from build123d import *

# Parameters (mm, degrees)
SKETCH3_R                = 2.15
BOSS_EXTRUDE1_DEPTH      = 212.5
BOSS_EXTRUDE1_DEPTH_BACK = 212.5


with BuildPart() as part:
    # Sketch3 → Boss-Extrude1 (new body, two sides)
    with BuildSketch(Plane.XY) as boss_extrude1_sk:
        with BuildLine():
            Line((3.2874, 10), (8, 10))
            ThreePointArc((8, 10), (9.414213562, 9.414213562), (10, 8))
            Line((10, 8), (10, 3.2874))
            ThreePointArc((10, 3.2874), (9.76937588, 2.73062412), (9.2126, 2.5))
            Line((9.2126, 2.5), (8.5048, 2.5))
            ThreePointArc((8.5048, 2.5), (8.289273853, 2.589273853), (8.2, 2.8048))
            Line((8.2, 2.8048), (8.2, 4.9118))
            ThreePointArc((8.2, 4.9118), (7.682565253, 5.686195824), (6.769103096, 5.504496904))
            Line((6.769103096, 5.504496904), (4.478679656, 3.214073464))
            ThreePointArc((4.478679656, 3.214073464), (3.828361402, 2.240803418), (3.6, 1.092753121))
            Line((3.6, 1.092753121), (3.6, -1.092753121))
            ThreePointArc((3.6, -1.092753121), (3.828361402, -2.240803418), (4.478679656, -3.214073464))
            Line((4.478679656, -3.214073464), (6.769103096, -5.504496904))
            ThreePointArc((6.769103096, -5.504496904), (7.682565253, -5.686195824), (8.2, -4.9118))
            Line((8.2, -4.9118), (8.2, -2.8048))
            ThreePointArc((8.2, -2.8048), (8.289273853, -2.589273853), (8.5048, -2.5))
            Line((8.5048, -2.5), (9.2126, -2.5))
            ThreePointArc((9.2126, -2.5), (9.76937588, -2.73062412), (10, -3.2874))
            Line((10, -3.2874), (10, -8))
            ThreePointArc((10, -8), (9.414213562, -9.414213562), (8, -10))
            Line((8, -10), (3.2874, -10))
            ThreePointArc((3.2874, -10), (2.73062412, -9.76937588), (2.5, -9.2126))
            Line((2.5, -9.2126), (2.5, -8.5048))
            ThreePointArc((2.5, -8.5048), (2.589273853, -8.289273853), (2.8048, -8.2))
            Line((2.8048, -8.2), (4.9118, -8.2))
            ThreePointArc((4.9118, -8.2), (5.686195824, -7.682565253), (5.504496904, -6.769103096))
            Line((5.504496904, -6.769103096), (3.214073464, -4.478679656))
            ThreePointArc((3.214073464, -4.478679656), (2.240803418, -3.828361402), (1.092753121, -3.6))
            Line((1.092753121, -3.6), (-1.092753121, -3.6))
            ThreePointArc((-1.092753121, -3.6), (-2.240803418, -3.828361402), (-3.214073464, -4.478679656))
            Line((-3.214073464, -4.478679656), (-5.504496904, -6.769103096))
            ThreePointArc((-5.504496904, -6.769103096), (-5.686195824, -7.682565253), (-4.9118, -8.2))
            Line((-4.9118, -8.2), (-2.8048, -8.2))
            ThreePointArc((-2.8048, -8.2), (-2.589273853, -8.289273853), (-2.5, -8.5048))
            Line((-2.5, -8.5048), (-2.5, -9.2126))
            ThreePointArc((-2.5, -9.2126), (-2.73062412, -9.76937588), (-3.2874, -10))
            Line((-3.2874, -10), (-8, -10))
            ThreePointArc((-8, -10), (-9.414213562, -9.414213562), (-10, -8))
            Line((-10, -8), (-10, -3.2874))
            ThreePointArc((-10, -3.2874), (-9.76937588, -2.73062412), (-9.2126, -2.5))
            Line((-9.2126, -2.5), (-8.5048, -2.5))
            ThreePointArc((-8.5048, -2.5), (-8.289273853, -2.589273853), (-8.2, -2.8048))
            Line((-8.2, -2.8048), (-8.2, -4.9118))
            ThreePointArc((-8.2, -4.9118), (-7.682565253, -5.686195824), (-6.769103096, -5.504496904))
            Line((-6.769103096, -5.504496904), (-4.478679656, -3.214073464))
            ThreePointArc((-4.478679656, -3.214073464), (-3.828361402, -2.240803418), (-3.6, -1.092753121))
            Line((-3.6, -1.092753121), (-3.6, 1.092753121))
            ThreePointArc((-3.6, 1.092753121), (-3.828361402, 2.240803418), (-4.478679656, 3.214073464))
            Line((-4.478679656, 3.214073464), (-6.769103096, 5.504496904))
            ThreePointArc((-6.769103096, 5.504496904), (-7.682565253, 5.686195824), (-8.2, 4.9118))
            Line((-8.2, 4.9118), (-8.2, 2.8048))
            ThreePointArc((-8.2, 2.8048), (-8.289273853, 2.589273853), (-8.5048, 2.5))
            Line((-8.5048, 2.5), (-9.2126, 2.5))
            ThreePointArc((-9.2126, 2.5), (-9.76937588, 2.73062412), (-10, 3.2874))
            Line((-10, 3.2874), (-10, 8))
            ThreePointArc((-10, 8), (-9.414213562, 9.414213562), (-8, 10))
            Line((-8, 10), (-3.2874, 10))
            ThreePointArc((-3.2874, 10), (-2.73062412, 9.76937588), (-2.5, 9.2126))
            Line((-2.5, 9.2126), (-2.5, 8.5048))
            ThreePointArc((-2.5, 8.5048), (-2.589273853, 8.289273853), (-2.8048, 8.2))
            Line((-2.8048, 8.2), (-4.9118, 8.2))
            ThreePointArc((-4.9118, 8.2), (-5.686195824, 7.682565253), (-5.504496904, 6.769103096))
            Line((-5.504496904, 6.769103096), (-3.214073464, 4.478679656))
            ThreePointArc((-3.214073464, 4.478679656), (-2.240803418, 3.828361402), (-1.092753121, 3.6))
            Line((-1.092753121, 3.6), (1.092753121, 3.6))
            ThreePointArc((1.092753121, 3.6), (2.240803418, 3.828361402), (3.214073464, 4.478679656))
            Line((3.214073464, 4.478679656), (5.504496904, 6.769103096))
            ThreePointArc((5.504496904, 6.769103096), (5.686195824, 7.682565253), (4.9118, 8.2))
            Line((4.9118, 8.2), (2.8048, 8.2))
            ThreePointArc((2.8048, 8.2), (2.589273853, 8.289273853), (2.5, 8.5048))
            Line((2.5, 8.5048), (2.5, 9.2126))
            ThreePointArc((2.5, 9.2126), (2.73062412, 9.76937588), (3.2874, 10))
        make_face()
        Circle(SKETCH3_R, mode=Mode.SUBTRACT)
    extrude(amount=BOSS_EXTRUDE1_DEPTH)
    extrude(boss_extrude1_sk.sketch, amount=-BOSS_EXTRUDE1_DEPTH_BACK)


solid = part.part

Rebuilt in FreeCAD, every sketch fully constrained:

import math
import FreeCAD as App
import Part
import Sketcher
from FreeCAD import Vector

doc = App.newDocument("Part")
body = doc.addObject("PartDesign::Body", "Body")

# Sketch on XY plane
sketch1 = body.newObject("Sketcher::SketchObject", "Sketch")
sketch1.AttachmentSupport = (doc.getObject("XY_Plane"), [""])
sketch1.MapMode = "FlatFace"
sketch1.addGeometry([
    Part.LineSegment(Vector(8, 10, 0), Vector(3.29, 10, 0)),  # 0
    Part.ArcOfCircle(Part.Circle(Vector(3.29, 9.21, 0), Vector(0, 0, 1), 0.79), math.radians(90), math.radians(180)),  # 1
    Part.LineSegment(Vector(2.5, 9.21, 0), Vector(2.5, 8.5, 0)),  # 2
    Part.ArcOfCircle(Part.Circle(Vector(2.8, 8.5, 0), Vector(0, 0, 1), 0.3), math.radians(180), math.radians(270)),  # 3
    Part.LineSegment(Vector(2.8, 8.2, 0), Vector(4.91, 8.2, 0)),  # 4
    Part.ArcOfCircle(Part.Circle(Vector(4.91, 7.36, 0), Vector(0, 0, 1), 0.84), math.radians(-45), math.radians(90)),  # 5
    Part.LineSegment(Vector(5.5, 6.77, 0), Vector(3.21, 4.48, 0)),  # 6
    Part.ArcOfCircle(Part.Circle(Vector(1.09, 6.6, 0), Vector(0, 0, 1), 3), math.radians(-90), math.radians(-45)),  # 7
    Part.LineSegment(Vector(1.09, 3.6, 0), Vector(-1.09, 3.6, 0)),  # 8
    Part.ArcOfCircle(Part.Circle(Vector(-1.09, 6.6, 0), Vector(0, 0, 1), 3), math.radians(-135), math.radians(-90)),  # 9
    Part.LineSegment(Vector(-3.21, 4.48, 0), Vector(-5.5, 6.77, 0)),  # 10
    Part.ArcOfCircle(Part.Circle(Vector(-4.91, 7.36, 0), Vector(0, 0, 1), 0.84), math.radians(90), math.radians(225)),  # 11
    Part.LineSegment(Vector(-4.91, 8.2, 0), Vector(-2.8, 8.2, 0)),  # 12
    Part.ArcOfCircle(Part.Circle(Vector(-2.8, 8.5, 0), Vector(0, 0, 1), 0.3), math.radians(-90), math.radians(0)),  # 13
    Part.LineSegment(Vector(-2.5, 8.5, 0), Vector(-2.5, 9.21, 0)),  # 14
    Part.ArcOfCircle(Part.Circle(Vector(-3.29, 9.21, 0), Vector(0, 0, 1), 0.79), math.radians(0), math.radians(90)),  # 15
    Part.LineSegment(Vector(-3.29, 10, 0), Vector(-8, 10, 0)),  # 16
    Part.ArcOfCircle(Part.Circle(Vector(-8, 8, 0), Vector(0, 0, 1), 2), math.radians(90), math.radians(180)),  # 17
    Part.LineSegment(Vector(-10, 8, 0), Vector(-10, 3.29, 0)),  # 18
    Part.ArcOfCircle(Part.Circle(Vector(-9.21, 3.29, 0), Vector(0, 0, 1), 0.79), math.radians(180), math.radians(270)),  # 19
    Part.LineSegment(Vector(-9.21, 2.5, 0), Vector(-8.5, 2.5, 0)),  # 20
    Part.ArcOfCircle(Part.Circle(Vector(-8.5, 2.8, 0), Vector(0, 0, 1), 0.3), math.radians(-90), math.radians(0)),  # 21
    Part.LineSegment(Vector(-8.2, 2.8, 0), Vector(-8.2, 4.91, 0)),  # 22
    Part.ArcOfCircle(Part.Circle(Vector(-7.36, 4.91, 0), Vector(0, 0, 1), 0.84), math.radians(45), math.radians(180)),  # 23
    Part.LineSegment(Vector(-6.77, 5.5, 0), Vector(-4.48, 3.21, 0)),  # 24
    Part.ArcOfCircle(Part.Circle(Vector(-6.6, 1.09, 0), Vector(0, 0, 1), 3), math.radians(0), math.radians(45)),  # 25
    Part.LineSegment(Vector(-3.6, 1.09, 0), Vector(-3.6, -1.09, 0)),  # 26
    Part.ArcOfCircle(Part.Circle(Vector(-6.6, -1.09, 0), Vector(0, 0, 1), 3), math.radians(-45), math.radians(0)),  # 27
    Part.LineSegment(Vector(-4.48, -3.21, 0), Vector(-6.77, -5.5, 0)),  # 28
    Part.ArcOfCircle(Part.Circle(Vector(-7.36, -4.91, 0), Vector(0, 0, 1), 0.84), math.radians(180), math.radians(315)),  # 29
    Part.LineSegment(Vector(-8.2, -4.91, 0), Vector(-8.2, -2.8, 0)),  # 30
    Part.ArcOfCircle(Part.Circle(Vector(-8.5, -2.8, 0), Vector(0, 0, 1), 0.3), math.radians(0), math.radians(90)),  # 31
    Part.LineSegment(Vector(-8.5, -2.5, 0), Vector(-9.21, -2.5, 0)),  # 32
    Part.ArcOfCircle(Part.Circle(Vector(-9.21, -3.29, 0), Vector(0, 0, 1), 0.79), math.radians(90), math.radians(180)),  # 33
    Part.LineSegment(Vector(-10, -3.29, 0), Vector(-10, -8, 0)),  # 34
    Part.ArcOfCircle(Part.Circle(Vector(-8, -8, 0), Vector(0, 0, 1), 2), math.radians(-180), math.radians(-90)),  # 35
    Part.LineSegment(Vector(-8, -10, 0), Vector(-3.29, -10, 0)),  # 36
    Part.ArcOfCircle(Part.Circle(Vector(-3.29, -9.21, 0), Vector(0, 0, 1), 0.79), math.radians(-90), math.radians(0)),  # 37
    Part.LineSegment(Vector(-2.5, -9.21, 0), Vector(-2.5, -8.5, 0)),  # 38
    Part.ArcOfCircle(Part.Circle(Vector(-2.8, -8.5, 0), Vector(0, 0, 1), 0.3), math.radians(0), math.radians(90)),  # 39
    Part.LineSegment(Vector(-2.8, -8.2, 0), Vector(-4.91, -8.2, 0)),  # 40
    Part.ArcOfCircle(Part.Circle(Vector(-4.91, -7.36, 0), Vector(0, 0, 1), 0.84), math.radians(135), math.radians(270)),  # 41
    Part.LineSegment(Vector(-5.5, -6.77, 0), Vector(-3.21, -4.48, 0)),  # 42
    Part.ArcOfCircle(Part.Circle(Vector(-1.09, -6.6, 0), Vector(0, 0, 1), 3), math.radians(90), math.radians(135)),  # 43
    Part.LineSegment(Vector(-1.09, -3.6, 0), Vector(1.09, -3.6, 0)),  # 44
    Part.ArcOfCircle(Part.Circle(Vector(1.09, -6.6, 0), Vector(0, 0, 1), 3), math.radians(45), math.radians(90)),  # 45
    Part.LineSegment(Vector(3.21, -4.48, 0), Vector(5.5, -6.77, 0)),  # 46
    Part.ArcOfCircle(Part.Circle(Vector(4.91, -7.36, 0), Vector(0, 0, 1), 0.84), math.radians(-90), math.radians(45)),  # 47
    Part.LineSegment(Vector(4.91, -8.2, 0), Vector(2.8, -8.2, 0)),  # 48
    Part.ArcOfCircle(Part.Circle(Vector(2.8, -8.5, 0), Vector(0, 0, 1), 0.3), math.radians(90), math.radians(180)),  # 49
    Part.LineSegment(Vector(2.5, -8.5, 0), Vector(2.5, -9.21, 0)),  # 50
    Part.ArcOfCircle(Part.Circle(Vector(3.29, -9.21, 0), Vector(0, 0, 1), 0.79), math.radians(180), math.radians(270)),  # 51
    Part.LineSegment(Vector(3.29, -10, 0), Vector(8, -10, 0)),  # 52
    Part.ArcOfCircle(Part.Circle(Vector(8, -8, 0), Vector(0, 0, 1), 2), math.radians(-90), math.radians(0)),  # 53
    Part.LineSegment(Vector(10, -8, 0), Vector(10, -3.29, 0)),  # 54
    Part.ArcOfCircle(Part.Circle(Vector(9.21, -3.29, 0), Vector(0, 0, 1), 0.79), math.radians(0), math.radians(90)),  # 55
    Part.LineSegment(Vector(9.21, -2.5, 0), Vector(8.5, -2.5, 0)),  # 56
    Part.ArcOfCircle(Part.Circle(Vector(8.5, -2.8, 0), Vector(0, 0, 1), 0.3), math.radians(90), math.radians(180)),  # 57
    Part.LineSegment(Vector(8.2, -2.8, 0), Vector(8.2, -4.91, 0)),  # 58
    Part.ArcOfCircle(Part.Circle(Vector(7.36, -4.91, 0), Vector(0, 0, 1), 0.84), math.radians(-135), math.radians(0)),  # 59
    Part.LineSegment(Vector(6.77, -5.5, 0), Vector(4.48, -3.21, 0)),  # 60
    Part.ArcOfCircle(Part.Circle(Vector(6.6, -1.09, 0), Vector(0, 0, 1), 3), math.radians(180), math.radians(225)),  # 61
    Part.LineSegment(Vector(3.6, -1.09, 0), Vector(3.6, 1.09, 0)),  # 62
    Part.ArcOfCircle(Part.Circle(Vector(6.6, 1.09, 0), Vector(0, 0, 1), 3), math.radians(135), math.radians(180)),  # 63
    Part.LineSegment(Vector(4.48, 3.21, 0), Vector(6.77, 5.5, 0)),  # 64
    Part.ArcOfCircle(Part.Circle(Vector(7.36, 4.91, 0), Vector(0, 0, 1), 0.84), math.radians(0), math.radians(135)),  # 65
    Part.LineSegment(Vector(8.2, 4.91, 0), Vector(8.2, 2.8, 0)),  # 66
    Part.ArcOfCircle(Part.Circle(Vector(8.5, 2.8, 0), Vector(0, 0, 1), 0.3), math.radians(180), math.radians(270)),  # 67
    Part.LineSegment(Vector(8.5, 2.5, 0), Vector(9.21, 2.5, 0)),  # 68
    Part.ArcOfCircle(Part.Circle(Vector(9.21, 3.29, 0), Vector(0, 0, 1), 0.79), math.radians(-90), math.radians(0)),  # 69
    Part.LineSegment(Vector(10, 3.29, 0), Vector(10, 8, 0)),  # 70
    Part.ArcOfCircle(Part.Circle(Vector(8, 8, 0), Vector(0, 0, 1), 2), math.radians(0), math.radians(90)),  # 71
    Part.Circle(Vector(0, 0, 0), Vector(0, 0, 1), 2.15),  # 72
], False)
sketch1.addConstraint([
    Sketcher.Constraint("Tangent", 0, 2, 1, 1),
    Sketcher.Constraint("Tangent", 1, 2, 2, 1),
    Sketcher.Constraint("Tangent", 2, 2, 3, 1),
    Sketcher.Constraint("Tangent", 3, 2, 4, 1),
    Sketcher.Constraint("Tangent", 4, 2, 5, 2),
    Sketcher.Constraint("Tangent", 5, 1, 6, 1),
    Sketcher.Constraint("Tangent", 6, 2, 7, 2),
    Sketcher.Constraint("Tangent", 7, 1, 8, 1),
    Sketcher.Constraint("Tangent", 8, 2, 9, 2),
    Sketcher.Constraint("Tangent", 9, 1, 10, 1),
    Sketcher.Constraint("Tangent", 10, 2, 11, 2),
    Sketcher.Constraint("Tangent", 11, 1, 12, 1),
    Sketcher.Constraint("Tangent", 12, 2, 13, 1),
    Sketcher.Constraint("Tangent", 13, 2, 14, 1),
    Sketcher.Constraint("Tangent", 14, 2, 15, 1),
    Sketcher.Constraint("Tangent", 15, 2, 16, 1),
    Sketcher.Constraint("Tangent", 16, 2, 17, 1),
    Sketcher.Constraint("Tangent", 17, 2, 18, 1),
    Sketcher.Constraint("Tangent", 18, 2, 19, 1),
    Sketcher.Constraint("Tangent", 19, 2, 20, 1),
    Sketcher.Constraint("Tangent", 20, 2, 21, 1),
    Sketcher.Constraint("Tangent", 21, 2, 22, 1),
    Sketcher.Constraint("Tangent", 22, 2, 23, 2),
    Sketcher.Constraint("Tangent", 23, 1, 24, 1),
    Sketcher.Constraint("Tangent", 24, 2, 25, 2),
    Sketcher.Constraint("Tangent", 25, 1, 26, 1),
    Sketcher.Constraint("Tangent", 26, 2, 27, 2),
    Sketcher.Constraint("Tangent", 27, 1, 28, 1),
    Sketcher.Constraint("Tangent", 28, 2, 29, 2),
    Sketcher.Constraint("Tangent", 29, 1, 30, 1),
    Sketcher.Constraint("Tangent", 30, 2, 31, 1),
    Sketcher.Constraint("Tangent", 31, 2, 32, 1),
    Sketcher.Constraint("Tangent", 32, 2, 33, 1),
    Sketcher.Constraint("Tangent", 33, 2, 34, 1),
    Sketcher.Constraint("Tangent", 34, 2, 35, 1),
    Sketcher.Constraint("Tangent", 35, 2, 36, 1),
    Sketcher.Constraint("Tangent", 36, 2, 37, 1),
    Sketcher.Constraint("Tangent", 37, 2, 38, 1),
    Sketcher.Constraint("Tangent", 38, 2, 39, 1),
    Sketcher.Constraint("Tangent", 39, 2, 40, 1),
    Sketcher.Constraint("Tangent", 40, 2, 41, 2),
    Sketcher.Constraint("Tangent", 41, 1, 42, 1),
    Sketcher.Constraint("Tangent", 42, 2, 43, 2),
    Sketcher.Constraint("Tangent", 43, 1, 44, 1),
    Sketcher.Constraint("Tangent", 44, 2, 45, 2),
    Sketcher.Constraint("Tangent", 45, 1, 46, 1),
    Sketcher.Constraint("Tangent", 46, 2, 47, 2),
    Sketcher.Constraint("Tangent", 47, 1, 48, 1),
    Sketcher.Constraint("Tangent", 48, 2, 49, 1),
    Sketcher.Constraint("Tangent", 49, 2, 50, 1),
    Sketcher.Constraint("Tangent", 50, 2, 51, 1),
    Sketcher.Constraint("Tangent", 51, 2, 52, 1),
    Sketcher.Constraint("Tangent", 52, 2, 53, 1),
    Sketcher.Constraint("Tangent", 53, 2, 54, 1),
    Sketcher.Constraint("Tangent", 54, 2, 55, 1),
    Sketcher.Constraint("Tangent", 55, 2, 56, 1),
    Sketcher.Constraint("Tangent", 56, 2, 57, 1),
    Sketcher.Constraint("Tangent", 57, 2, 58, 1),
    Sketcher.Constraint("Tangent", 58, 2, 59, 2),
    Sketcher.Constraint("Tangent", 59, 1, 60, 1),
    Sketcher.Constraint("Tangent", 60, 2, 61, 2),
    Sketcher.Constraint("Tangent", 61, 1, 62, 1),
    Sketcher.Constraint("Tangent", 62, 2, 63, 2),
    Sketcher.Constraint("Tangent", 63, 1, 64, 1),
    Sketcher.Constraint("Tangent", 64, 2, 65, 2),
    Sketcher.Constraint("Tangent", 65, 1, 66, 1),
    Sketcher.Constraint("Tangent", 66, 2, 67, 1),
    Sketcher.Constraint("Tangent", 67, 2, 68, 1),
    Sketcher.Constraint("Tangent", 68, 2, 69, 1),
    Sketcher.Constraint("Tangent", 69, 2, 70, 1),
    Sketcher.Constraint("Tangent", 70, 2, 71, 1),
    Sketcher.Constraint("Tangent", 71, 2, 0, 1),
    Sketcher.Constraint("Horizontal", 0),
    Sketcher.Constraint("Vertical", 2),
    Sketcher.Constraint("Horizontal", 4),
    Sketcher.Constraint("Horizontal", 8),
    Sketcher.Constraint("Horizontal", 12),
    Sketcher.Constraint("Vertical", 14),
    Sketcher.Constraint("Horizontal", 16),
    Sketcher.Constraint("Vertical", 18),
    Sketcher.Constraint("Horizontal", 20),
    Sketcher.Constraint("Vertical", 22),
    Sketcher.Constraint("Vertical", 26),
    Sketcher.Constraint("Vertical", 30),
    Sketcher.Constraint("Horizontal", 32),
    Sketcher.Constraint("Vertical", 34),
    Sketcher.Constraint("Horizontal", 36),
    Sketcher.Constraint("Vertical", 38),
    Sketcher.Constraint("Horizontal", 40),
    Sketcher.Constraint("Horizontal", 44),
    Sketcher.Constraint("Horizontal", 48),
    Sketcher.Constraint("Vertical", 50),
    Sketcher.Constraint("Horizontal", 52),
    Sketcher.Constraint("Vertical", 54),
    Sketcher.Constraint("Horizontal", 56),
    Sketcher.Constraint("Vertical", 58),
    Sketcher.Constraint("Vertical", 62),
    Sketcher.Constraint("Vertical", 66),
    Sketcher.Constraint("Horizontal", 68),
    Sketcher.Constraint("Vertical", 70),
    Sketcher.Constraint("Coincident", 72, 3, -1, 1),
    Sketcher.Constraint("Equal", 7, 9),
    Sketcher.Constraint("Equal", 5, 11),
    Sketcher.Constraint("Equal", 3, 13),
    Sketcher.Constraint("Equal", 1, 15),
    Sketcher.Constraint("Equal", 15, 19),
    Sketcher.Constraint("Equal", 13, 21),
    Sketcher.Constraint("Equal", 11, 23),
    Sketcher.Constraint("Equal", 9, 25),
    Sketcher.Constraint("Equal", 25, 27),
    Sketcher.Constraint("Equal", 23, 29),
    Sketcher.Constraint("Equal", 21, 31),
    Sketcher.Constraint("Equal", 19, 33),
    Sketcher.Constraint("Equal", 17, 35),
    Sketcher.Constraint("Equal", 33, 37),
    Sketcher.Constraint("Equal", 31, 39),
    Sketcher.Constraint("Equal", 29, 41),
    Sketcher.Constraint("Equal", 27, 43),
    Sketcher.Constraint("Equal", 43, 45),
    Sketcher.Constraint("Equal", 41, 47),
    Sketcher.Constraint("Equal", 39, 49),
    Sketcher.Constraint("Equal", 37, 51),
    Sketcher.Constraint("Equal", 35, 53),
    Sketcher.Constraint("Equal", 51, 55),
    Sketcher.Constraint("Equal", 49, 57),
    Sketcher.Constraint("Equal", 47, 59),
    Sketcher.Constraint("Equal", 45, 61),
    Sketcher.Constraint("Equal", 61, 63),
    Sketcher.Constraint("Equal", 59, 65),
    Sketcher.Constraint("Equal", 57, 67),
    Sketcher.Constraint("Equal", 55, 69),
    Sketcher.Constraint("Equal", 53, 71),
    Sketcher.Constraint("Symmetric", 1, 3, 37, 3, -1, 1),
    Sketcher.Constraint("Symmetric", 5, 3, 41, 3, -1, 1),
    Sketcher.Constraint("Symmetric", 7, 3, 43, 3, -1, 1),
    Sketcher.Constraint("Symmetric", 11, 3, 47, 3, -1, 1),
    Sketcher.Constraint("Symmetric", 15, 3, 51, 3, -1, 1),
    Sketcher.Constraint("Symmetric", 19, 3, 55, 3, -1, 1),
    Sketcher.Constraint("Symmetric", 23, 3, 59, 3, -1, 1),
    Sketcher.Constraint("Symmetric", 25, 3, 61, 3, -1, 1),
    Sketcher.Constraint("Symmetric", 29, 3, 65, 3, -1, 1),
    Sketcher.Constraint("Symmetric", 33, 3, 69, 3, -1, 1),
    Sketcher.Constraint("Symmetric", 5, 3, 11, 3, -2),
    Sketcher.Constraint("Symmetric", 1, 3, 15, 3, -2),
    Sketcher.Constraint("Symmetric", 33, 3, 55, 3, -2),
    Sketcher.Constraint("Symmetric", 29, 3, 59, 3, -2),
    Sketcher.Constraint("Perpendicular", 6, 10),
    Sketcher.Constraint("Parallel", 10, 24),
    Sketcher.Constraint("Perpendicular", 24, 28),
    Sketcher.Constraint("Perpendicular", 42, 46),
    Sketcher.Constraint("Perpendicular", 60, 64),
    Sketcher.Constraint("Horizontal", 27, 3, 61, 3),
    Sketcher.Constraint("Equal", 68, 2),
    Sketcher.Constraint("Equal", 52, 18),
    Sketcher.Constraint("Equal", 48, 22),
    Sketcher.Constraint("Equal", 44, 26),
    Sketcher.Constraint("Equal", 10, 24),
    Sketcher.Constraint("Radius", 7, 3.0),
    Sketcher.Constraint("Radius", 17, 2.0),
    Sketcher.Constraint("Diameter", 72, 4.3),
    Sketcher.Constraint("DistanceX", 17, 3, -1, 1, 8.0),
    Sketcher.Constraint("DistanceY", -1, 1, 7, 3, 6.6),
    Sketcher.Constraint("DistanceX", -1, 1, 1, 2, 2.5),
    Sketcher.Constraint("DistanceY", -1, 1, 3, 2, 8.2),
    Sketcher.Constraint("Radius", 1, 0.7874),
    Sketcher.Constraint("Radius", 3, 0.3048),
    Sketcher.Constraint("Radius", 5, 0.8382),
    Sketcher.Constraint("DistanceX", 4, 1, 4, 2, 2.107),
])
pad1 = body.newObject("PartDesign::Pad", "Pad")
pad1.Profile = sketch1
pad1.Type = "TwoLengths"
pad1.Length = 212.5
pad1.Length2 = 212.5

doc.recompute()
